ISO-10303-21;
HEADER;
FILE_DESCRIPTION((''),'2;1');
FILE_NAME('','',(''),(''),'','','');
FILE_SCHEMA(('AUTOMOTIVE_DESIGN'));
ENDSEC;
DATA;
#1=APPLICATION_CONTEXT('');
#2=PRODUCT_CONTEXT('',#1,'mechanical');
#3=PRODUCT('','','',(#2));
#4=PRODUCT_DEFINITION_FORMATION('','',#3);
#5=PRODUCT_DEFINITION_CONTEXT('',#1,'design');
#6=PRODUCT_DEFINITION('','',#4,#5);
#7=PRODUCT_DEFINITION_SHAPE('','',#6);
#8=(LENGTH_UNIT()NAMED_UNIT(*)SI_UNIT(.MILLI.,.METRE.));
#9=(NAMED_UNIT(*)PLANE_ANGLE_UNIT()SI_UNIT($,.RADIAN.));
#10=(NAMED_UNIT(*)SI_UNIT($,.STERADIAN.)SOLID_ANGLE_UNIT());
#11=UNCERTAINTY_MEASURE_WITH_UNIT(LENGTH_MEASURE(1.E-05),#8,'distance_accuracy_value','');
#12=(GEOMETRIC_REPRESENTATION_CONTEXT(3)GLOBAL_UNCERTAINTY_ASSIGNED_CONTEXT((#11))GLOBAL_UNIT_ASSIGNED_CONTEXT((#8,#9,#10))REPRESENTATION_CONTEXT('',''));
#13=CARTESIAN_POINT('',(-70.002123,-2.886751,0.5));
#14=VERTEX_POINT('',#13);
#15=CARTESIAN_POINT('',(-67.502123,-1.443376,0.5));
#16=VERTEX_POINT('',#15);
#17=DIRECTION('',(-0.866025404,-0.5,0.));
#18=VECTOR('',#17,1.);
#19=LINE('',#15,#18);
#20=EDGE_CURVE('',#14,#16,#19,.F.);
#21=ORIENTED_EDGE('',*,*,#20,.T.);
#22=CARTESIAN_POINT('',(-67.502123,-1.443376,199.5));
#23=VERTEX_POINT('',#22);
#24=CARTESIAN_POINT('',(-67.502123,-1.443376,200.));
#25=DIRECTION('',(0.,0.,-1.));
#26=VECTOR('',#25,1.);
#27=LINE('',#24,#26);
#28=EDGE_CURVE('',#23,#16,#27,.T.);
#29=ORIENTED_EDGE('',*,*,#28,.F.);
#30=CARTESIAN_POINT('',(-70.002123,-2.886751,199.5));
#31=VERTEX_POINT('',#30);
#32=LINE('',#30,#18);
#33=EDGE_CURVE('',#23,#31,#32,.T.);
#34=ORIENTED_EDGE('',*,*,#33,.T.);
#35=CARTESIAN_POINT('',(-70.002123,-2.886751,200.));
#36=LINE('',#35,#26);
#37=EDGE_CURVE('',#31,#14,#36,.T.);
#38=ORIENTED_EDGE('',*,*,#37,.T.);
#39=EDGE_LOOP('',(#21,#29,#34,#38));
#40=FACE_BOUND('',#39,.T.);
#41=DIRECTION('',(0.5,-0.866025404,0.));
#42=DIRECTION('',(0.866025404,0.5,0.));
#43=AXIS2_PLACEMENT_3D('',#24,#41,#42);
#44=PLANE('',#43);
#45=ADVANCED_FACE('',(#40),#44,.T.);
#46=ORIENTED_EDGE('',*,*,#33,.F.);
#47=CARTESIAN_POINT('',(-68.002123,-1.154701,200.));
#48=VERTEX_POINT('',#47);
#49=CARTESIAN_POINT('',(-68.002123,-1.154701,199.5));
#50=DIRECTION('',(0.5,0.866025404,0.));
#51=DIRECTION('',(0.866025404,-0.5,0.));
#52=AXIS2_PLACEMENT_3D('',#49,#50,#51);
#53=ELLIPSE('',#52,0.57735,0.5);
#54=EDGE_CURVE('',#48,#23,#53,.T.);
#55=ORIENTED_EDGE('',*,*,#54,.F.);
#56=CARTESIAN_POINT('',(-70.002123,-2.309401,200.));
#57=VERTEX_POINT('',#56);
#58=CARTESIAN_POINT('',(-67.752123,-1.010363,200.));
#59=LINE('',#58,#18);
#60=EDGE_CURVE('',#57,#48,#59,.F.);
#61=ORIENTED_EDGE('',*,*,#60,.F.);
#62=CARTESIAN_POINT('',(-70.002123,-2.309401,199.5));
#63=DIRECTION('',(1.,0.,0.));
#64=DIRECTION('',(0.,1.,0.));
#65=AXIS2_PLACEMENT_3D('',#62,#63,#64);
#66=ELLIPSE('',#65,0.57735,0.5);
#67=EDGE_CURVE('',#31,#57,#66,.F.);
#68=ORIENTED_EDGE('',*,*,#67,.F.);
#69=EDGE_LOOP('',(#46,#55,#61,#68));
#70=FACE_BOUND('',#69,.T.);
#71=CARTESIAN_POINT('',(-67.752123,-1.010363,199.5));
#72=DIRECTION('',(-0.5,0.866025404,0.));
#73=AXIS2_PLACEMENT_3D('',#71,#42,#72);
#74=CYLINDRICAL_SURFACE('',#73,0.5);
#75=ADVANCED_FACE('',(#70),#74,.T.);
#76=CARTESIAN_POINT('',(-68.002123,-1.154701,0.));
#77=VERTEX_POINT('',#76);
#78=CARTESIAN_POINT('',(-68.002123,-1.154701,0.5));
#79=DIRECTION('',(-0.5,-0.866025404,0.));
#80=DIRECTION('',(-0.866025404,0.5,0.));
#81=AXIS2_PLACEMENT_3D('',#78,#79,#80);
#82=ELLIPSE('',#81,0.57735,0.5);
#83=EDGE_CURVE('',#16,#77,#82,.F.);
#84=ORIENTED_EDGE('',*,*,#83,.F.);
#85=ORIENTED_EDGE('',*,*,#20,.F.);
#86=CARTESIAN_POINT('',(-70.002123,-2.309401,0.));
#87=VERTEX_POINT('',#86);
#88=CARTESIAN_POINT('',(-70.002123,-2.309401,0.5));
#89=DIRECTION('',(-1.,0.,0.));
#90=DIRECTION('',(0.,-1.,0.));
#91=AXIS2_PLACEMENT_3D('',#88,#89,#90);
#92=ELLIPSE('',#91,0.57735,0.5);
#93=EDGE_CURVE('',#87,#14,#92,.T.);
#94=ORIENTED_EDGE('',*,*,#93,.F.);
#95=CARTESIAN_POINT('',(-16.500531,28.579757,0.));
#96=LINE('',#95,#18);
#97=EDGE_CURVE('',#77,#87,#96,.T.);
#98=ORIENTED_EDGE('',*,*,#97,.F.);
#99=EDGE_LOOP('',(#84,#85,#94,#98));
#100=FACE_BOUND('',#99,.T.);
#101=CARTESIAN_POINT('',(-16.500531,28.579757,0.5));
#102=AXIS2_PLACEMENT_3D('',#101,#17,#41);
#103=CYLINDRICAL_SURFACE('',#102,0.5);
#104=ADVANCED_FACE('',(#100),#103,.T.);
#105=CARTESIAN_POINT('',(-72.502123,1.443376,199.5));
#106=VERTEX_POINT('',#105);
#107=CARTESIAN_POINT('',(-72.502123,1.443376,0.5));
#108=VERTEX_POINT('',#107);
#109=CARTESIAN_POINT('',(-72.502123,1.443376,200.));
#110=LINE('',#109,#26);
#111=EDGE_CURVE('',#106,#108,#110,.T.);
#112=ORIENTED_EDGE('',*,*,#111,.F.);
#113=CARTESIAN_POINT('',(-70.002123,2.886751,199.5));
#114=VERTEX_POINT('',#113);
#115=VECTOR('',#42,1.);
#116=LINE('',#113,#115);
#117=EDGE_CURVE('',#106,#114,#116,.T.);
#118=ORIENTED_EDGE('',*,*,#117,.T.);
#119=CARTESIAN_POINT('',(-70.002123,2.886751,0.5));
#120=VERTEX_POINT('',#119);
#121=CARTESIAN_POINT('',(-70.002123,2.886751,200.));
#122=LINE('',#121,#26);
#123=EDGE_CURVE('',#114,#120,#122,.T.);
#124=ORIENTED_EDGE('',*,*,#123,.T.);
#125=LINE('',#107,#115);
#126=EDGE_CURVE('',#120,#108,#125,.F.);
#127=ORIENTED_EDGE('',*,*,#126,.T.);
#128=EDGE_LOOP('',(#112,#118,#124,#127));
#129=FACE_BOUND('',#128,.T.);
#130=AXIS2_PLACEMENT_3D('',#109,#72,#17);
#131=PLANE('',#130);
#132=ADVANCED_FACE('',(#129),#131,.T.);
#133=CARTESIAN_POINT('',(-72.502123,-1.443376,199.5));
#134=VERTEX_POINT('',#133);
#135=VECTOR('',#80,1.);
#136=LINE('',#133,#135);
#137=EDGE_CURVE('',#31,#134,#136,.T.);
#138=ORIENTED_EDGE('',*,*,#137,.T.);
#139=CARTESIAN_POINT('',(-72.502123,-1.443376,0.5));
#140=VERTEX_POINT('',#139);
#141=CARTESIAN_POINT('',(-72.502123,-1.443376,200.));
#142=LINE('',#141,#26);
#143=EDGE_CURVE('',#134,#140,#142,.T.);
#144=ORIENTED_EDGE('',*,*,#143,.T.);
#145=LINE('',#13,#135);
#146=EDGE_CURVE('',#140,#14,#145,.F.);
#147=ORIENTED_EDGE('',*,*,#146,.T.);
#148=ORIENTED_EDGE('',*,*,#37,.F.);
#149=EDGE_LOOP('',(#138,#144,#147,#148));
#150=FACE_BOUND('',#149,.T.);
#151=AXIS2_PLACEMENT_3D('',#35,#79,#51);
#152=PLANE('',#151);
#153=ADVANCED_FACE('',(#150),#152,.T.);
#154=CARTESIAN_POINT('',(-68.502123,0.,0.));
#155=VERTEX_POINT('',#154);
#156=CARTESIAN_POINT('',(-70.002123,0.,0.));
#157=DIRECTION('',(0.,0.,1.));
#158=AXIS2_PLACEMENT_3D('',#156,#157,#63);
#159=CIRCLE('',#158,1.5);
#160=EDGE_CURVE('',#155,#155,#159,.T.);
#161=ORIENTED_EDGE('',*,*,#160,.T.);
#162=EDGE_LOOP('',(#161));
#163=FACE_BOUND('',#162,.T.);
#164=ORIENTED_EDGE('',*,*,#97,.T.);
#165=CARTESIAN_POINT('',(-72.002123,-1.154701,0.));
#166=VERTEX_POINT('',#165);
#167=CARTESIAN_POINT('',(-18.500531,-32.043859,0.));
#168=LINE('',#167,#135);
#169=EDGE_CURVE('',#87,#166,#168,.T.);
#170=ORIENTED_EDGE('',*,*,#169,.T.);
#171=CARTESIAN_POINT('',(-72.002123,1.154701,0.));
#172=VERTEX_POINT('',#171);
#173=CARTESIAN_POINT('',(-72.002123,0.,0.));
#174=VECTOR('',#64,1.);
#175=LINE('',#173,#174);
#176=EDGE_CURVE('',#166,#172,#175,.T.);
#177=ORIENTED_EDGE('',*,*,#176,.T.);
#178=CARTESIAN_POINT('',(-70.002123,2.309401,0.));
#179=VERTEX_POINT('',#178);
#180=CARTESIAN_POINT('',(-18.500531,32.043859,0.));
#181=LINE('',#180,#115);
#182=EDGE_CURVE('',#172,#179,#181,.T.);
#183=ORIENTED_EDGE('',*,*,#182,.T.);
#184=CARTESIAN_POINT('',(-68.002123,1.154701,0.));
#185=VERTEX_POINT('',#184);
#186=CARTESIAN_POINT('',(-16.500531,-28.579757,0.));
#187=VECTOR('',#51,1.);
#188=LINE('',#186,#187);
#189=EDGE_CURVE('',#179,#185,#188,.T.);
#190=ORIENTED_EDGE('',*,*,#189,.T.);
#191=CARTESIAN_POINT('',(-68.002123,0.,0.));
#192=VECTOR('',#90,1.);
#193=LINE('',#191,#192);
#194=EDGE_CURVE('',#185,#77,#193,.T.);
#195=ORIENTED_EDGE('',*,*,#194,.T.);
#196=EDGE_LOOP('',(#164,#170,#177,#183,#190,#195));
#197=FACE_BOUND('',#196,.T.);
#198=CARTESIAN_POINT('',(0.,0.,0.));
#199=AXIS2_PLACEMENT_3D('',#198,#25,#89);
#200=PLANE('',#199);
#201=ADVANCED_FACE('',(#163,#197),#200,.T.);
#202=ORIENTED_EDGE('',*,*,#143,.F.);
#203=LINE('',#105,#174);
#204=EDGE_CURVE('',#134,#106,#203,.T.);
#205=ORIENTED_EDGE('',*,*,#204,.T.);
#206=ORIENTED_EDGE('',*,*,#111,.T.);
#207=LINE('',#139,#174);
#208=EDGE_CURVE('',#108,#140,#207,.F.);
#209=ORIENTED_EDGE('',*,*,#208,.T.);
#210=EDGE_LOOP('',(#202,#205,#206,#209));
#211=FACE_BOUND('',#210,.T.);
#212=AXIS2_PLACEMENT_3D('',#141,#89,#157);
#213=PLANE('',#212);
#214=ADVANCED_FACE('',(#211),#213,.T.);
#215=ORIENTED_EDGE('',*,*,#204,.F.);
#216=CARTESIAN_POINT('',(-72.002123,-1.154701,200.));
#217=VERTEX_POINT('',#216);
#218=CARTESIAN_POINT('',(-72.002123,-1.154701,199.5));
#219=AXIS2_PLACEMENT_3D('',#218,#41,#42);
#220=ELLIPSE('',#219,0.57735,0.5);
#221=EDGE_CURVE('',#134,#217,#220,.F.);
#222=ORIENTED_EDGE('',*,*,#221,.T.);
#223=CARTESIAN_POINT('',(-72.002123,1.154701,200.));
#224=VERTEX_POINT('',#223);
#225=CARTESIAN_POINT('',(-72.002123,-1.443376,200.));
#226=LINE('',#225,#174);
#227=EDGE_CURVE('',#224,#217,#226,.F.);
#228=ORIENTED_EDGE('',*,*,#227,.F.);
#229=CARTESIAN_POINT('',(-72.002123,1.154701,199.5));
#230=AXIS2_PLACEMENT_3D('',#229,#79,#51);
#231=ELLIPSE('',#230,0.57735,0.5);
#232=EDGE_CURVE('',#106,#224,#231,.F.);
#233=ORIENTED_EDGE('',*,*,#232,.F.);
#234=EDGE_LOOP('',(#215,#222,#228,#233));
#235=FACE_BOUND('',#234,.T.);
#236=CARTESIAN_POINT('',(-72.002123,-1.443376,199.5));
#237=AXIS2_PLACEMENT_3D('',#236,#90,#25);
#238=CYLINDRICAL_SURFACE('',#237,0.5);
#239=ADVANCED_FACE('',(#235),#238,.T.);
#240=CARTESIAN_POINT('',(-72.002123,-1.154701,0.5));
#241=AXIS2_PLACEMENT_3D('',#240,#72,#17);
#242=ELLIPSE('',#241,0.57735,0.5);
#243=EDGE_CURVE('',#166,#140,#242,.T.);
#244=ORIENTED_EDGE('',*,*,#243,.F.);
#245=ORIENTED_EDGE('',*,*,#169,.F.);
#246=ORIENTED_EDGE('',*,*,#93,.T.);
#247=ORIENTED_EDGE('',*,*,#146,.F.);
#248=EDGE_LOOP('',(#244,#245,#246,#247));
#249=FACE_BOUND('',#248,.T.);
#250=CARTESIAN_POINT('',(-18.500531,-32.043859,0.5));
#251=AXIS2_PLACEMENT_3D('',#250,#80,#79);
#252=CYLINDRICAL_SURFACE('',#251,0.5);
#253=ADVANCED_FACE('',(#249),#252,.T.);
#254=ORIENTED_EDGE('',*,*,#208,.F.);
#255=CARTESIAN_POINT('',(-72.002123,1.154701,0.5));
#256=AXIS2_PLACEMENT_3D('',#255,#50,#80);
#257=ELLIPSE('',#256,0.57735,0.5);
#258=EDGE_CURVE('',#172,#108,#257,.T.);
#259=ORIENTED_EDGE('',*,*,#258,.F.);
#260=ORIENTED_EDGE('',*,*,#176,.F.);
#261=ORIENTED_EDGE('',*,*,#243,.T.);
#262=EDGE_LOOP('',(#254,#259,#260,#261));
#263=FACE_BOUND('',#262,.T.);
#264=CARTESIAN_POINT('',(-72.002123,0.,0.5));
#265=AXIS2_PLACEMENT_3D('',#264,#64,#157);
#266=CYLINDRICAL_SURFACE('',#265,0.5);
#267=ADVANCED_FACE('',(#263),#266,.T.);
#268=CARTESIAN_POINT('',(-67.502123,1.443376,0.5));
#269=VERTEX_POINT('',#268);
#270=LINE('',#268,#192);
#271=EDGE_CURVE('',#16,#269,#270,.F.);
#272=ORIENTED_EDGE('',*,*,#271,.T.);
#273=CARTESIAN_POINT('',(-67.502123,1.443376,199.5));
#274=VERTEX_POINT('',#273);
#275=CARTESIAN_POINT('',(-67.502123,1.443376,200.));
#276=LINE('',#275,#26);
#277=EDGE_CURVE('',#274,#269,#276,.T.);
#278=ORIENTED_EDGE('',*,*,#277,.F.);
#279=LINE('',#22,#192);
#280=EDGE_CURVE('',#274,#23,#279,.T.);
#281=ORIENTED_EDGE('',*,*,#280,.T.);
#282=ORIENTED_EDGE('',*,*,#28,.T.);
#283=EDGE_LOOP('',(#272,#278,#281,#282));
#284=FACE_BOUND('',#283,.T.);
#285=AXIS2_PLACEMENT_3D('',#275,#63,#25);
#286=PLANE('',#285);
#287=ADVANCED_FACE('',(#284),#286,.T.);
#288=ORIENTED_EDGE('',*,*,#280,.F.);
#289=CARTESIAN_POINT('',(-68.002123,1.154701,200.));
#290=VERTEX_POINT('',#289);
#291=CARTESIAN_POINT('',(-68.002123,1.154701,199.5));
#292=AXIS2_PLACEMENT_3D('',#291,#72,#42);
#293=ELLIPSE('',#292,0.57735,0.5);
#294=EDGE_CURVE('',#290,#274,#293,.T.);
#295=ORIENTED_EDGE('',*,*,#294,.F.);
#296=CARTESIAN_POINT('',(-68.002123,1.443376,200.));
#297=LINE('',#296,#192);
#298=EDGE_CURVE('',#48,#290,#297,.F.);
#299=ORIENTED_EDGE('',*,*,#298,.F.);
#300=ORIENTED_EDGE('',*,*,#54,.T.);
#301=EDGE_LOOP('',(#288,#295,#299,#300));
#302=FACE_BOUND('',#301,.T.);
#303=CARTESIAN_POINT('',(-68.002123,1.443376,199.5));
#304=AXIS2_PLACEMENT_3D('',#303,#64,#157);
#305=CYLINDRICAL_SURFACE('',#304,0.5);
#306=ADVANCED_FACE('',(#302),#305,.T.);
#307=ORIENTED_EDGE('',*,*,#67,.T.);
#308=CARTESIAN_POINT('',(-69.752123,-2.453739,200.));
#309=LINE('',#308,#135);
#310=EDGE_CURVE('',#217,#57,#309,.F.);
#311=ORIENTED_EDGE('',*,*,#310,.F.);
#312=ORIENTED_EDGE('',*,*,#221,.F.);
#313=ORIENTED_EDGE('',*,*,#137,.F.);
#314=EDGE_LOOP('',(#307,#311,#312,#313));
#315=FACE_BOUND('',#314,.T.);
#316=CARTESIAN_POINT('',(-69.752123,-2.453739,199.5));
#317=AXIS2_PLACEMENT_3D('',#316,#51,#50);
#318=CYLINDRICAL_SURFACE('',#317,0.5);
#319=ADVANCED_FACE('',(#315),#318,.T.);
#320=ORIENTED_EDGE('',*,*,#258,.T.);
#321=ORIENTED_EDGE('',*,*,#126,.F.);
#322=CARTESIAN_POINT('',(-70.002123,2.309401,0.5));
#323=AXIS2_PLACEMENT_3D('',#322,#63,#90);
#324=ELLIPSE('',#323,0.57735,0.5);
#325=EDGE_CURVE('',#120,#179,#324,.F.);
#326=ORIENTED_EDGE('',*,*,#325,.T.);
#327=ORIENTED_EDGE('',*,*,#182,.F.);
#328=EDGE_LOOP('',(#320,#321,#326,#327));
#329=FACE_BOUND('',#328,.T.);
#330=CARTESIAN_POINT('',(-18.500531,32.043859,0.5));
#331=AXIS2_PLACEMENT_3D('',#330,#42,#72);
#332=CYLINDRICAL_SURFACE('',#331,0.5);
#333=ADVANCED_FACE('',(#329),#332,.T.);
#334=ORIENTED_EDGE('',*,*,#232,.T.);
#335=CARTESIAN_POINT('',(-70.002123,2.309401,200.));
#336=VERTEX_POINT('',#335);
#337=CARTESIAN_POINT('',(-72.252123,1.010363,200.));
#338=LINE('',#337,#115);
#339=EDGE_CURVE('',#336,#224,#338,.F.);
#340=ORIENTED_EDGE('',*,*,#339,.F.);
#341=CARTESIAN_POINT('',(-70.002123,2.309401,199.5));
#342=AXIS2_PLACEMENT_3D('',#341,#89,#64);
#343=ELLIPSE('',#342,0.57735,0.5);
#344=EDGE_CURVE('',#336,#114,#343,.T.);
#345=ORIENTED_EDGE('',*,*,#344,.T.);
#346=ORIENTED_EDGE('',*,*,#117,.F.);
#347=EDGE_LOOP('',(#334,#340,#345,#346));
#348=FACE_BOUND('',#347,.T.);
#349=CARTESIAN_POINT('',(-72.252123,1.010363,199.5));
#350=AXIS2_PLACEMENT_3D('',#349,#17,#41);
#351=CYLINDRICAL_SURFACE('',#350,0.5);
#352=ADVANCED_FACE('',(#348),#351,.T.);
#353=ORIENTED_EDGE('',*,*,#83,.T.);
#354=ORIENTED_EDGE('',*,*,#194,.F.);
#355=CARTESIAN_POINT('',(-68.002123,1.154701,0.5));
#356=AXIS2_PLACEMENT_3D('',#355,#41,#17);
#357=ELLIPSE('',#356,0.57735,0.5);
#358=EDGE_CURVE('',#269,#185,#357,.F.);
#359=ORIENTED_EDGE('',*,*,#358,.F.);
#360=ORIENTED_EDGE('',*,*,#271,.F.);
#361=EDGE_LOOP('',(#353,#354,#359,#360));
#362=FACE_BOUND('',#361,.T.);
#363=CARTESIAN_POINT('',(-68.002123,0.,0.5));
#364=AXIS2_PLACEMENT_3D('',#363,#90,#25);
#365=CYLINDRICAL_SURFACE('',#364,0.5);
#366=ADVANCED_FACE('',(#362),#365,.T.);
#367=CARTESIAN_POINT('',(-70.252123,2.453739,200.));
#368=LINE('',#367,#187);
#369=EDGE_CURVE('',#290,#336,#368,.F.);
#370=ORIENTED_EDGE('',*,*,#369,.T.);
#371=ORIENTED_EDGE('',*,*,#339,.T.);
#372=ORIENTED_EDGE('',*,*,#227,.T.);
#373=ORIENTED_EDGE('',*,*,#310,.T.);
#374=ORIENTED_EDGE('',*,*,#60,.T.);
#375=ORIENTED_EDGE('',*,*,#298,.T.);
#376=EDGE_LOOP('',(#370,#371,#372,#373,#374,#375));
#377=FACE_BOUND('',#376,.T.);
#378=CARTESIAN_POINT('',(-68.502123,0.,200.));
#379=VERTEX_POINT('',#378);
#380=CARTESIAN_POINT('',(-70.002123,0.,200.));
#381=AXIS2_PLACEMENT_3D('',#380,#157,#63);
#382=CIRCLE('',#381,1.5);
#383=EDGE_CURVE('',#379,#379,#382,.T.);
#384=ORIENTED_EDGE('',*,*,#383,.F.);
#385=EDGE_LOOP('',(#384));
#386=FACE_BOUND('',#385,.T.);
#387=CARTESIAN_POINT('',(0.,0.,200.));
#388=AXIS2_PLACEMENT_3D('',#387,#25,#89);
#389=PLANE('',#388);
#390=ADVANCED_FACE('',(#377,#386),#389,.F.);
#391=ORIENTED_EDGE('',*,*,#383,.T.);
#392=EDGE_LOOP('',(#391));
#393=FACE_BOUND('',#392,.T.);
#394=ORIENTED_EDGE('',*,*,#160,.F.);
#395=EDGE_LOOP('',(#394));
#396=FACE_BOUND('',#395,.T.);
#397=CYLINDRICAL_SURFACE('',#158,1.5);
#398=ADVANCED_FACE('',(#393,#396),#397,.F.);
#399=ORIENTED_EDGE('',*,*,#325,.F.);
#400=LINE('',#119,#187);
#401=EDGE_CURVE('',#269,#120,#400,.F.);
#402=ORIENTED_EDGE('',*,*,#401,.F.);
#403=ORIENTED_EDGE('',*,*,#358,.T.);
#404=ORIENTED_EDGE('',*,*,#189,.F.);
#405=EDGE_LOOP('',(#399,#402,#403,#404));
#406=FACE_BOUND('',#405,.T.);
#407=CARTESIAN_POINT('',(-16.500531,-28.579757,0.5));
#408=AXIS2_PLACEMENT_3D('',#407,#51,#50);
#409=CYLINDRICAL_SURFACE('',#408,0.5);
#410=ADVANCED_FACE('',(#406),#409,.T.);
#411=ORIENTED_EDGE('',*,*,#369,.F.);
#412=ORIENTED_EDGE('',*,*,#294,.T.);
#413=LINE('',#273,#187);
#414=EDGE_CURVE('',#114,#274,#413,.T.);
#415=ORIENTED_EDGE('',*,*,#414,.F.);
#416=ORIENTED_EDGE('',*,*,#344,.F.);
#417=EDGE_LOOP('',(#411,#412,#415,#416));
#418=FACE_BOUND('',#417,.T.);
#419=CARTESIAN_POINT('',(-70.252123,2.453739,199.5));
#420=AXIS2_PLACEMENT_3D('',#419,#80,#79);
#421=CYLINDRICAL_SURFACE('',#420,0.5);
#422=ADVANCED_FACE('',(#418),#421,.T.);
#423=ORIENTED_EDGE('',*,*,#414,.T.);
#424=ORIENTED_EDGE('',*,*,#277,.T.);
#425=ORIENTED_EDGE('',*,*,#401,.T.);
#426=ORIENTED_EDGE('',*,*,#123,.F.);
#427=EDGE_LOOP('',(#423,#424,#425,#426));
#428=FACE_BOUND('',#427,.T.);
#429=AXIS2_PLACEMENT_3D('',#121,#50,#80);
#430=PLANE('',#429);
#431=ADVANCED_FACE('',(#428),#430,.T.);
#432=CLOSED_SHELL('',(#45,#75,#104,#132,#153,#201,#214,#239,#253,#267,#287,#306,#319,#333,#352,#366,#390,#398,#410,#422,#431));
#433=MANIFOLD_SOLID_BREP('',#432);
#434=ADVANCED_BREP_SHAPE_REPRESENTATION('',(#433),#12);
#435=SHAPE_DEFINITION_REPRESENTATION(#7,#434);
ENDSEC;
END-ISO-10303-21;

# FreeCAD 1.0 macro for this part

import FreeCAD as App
import Part
import Sketcher
Q = App.Units.Quantity


def edges_at(feature, points):
    """Names of the edges that pass closest to the given points."""
    edges = feature.Shape.Edges
    near = lambda p: min(range(len(edges)), key=lambda i: edges[i].distToShape(Part.Vertex(*p))[0])
    return sorted({f"Edge{near(p) + 1}" for p in points})


def add_polygon(sketch, points):
    """Adds a closed chain of lines whose ends are joined by coincident constraints."""
    first, n = sketch.GeometryCount, len(points)
    for a, b in zip(points, points[1:] + points[:1]):
        sketch.addGeometry(Part.LineSegment(App.Vector(*a, 0), App.Vector(*b, 0)), False)
    for i in range(n):
        sketch.addConstraint(Sketcher.Constraint("Coincident", first + i, 2, first + (i + 1) % n, 1))

doc = App.newDocument("Part")
body = doc.addObject("PartDesign::Body", "Body")

sketch1 = body.newObject("Sketcher::SketchObject", "Sketch")
sketch1.AttachmentSupport = (doc.getObject("XY_Plane"), [""])
sketch1.MapMode = "FlatFace"
add_polygon(sketch1, [(-67.502123, -1.443376), (-70.002123, -2.886751), (-72.502123, -1.443376), (-72.502123, 1.443376), (-70.002123, 2.886751), (-67.502123, 1.443376)])
sketch1.addConstraint([
    Sketcher.Constraint("Vertical", 2),
    Sketcher.Constraint("Vertical", 5),
    Sketcher.Constraint("Symmetric", 0, 2, 3, 2, -1),
    Sketcher.Constraint("Parallel", 0, 3),
    Sketcher.Constraint("Parallel", 1, 4),
    Sketcher.Constraint("Horizontal", 2, 2, 4, 2),
    Sketcher.Constraint("Horizontal", 1, 2, 5, 2),
    Sketcher.Constraint("Angle", 0, Q("-150 deg")),
    Sketcher.Constraint("DistanceX", 2, 2, 4, 2, 5.0),
    Sketcher.Constraint("DistanceY", 2, 1, 2, 2, 2.886751),
    Sketcher.Constraint("DistanceX", 0, 2, -1, 1, 70.002123),
])
pad1 = body.newObject("PartDesign::Pad", "Pad")
pad1.Profile = sketch1
pad1.Length = 200
doc.recompute()

fillet = body.newObject("PartDesign::Fillet", "Fillet")
fillet.Base = (pad1, edges_at(pad1, [
    (-71.252, -2.165, 200),
    (-72.502, 0, 200),
    (-71.252, 2.165, 200),
    (-68.752, 2.165, 200),
    (-67.502, 0, 200),
    (-68.752, 2.165, 0),
    (-71.252, 2.165, 0),
    (-72.502, 0, 0),
    (-71.252, -2.165, 0),
    (-68.752, -2.165, 0),
    (-67.502, 0, 0),
    (-68.752, -2.165, 200),
]))
fillet.Radius = 0.5

sketch2 = body.newObject("Sketcher::SketchObject", "Sketch001")
sketch2.AttachmentSupport = (doc.getObject("XY_Plane"), [""])
sketch2.MapMode = "FlatFace"
sketch2.AttachmentOffset = App.Placement(App.Vector(0, 0, 200), App.Rotation())
sketch2.addGeometry(Part.Circle(App.Vector(-70.002123, 0, 0), App.Vector(0, 0, 1), 1.5), False)
sketch2.addConstraint([
    Sketcher.Constraint("PointOnObject", 0, 3, -1),
    Sketcher.Constraint("Diameter", 0, 3.0),
    Sketcher.Constraint("DistanceX", 0, 3, -1, 1, 70.002123),
])
pocket1 = body.newObject("PartDesign::Pocket", "Pocket")
pocket1.Profile = sketch2
pocket1.Type = "ThroughAll"

doc.recompute()
